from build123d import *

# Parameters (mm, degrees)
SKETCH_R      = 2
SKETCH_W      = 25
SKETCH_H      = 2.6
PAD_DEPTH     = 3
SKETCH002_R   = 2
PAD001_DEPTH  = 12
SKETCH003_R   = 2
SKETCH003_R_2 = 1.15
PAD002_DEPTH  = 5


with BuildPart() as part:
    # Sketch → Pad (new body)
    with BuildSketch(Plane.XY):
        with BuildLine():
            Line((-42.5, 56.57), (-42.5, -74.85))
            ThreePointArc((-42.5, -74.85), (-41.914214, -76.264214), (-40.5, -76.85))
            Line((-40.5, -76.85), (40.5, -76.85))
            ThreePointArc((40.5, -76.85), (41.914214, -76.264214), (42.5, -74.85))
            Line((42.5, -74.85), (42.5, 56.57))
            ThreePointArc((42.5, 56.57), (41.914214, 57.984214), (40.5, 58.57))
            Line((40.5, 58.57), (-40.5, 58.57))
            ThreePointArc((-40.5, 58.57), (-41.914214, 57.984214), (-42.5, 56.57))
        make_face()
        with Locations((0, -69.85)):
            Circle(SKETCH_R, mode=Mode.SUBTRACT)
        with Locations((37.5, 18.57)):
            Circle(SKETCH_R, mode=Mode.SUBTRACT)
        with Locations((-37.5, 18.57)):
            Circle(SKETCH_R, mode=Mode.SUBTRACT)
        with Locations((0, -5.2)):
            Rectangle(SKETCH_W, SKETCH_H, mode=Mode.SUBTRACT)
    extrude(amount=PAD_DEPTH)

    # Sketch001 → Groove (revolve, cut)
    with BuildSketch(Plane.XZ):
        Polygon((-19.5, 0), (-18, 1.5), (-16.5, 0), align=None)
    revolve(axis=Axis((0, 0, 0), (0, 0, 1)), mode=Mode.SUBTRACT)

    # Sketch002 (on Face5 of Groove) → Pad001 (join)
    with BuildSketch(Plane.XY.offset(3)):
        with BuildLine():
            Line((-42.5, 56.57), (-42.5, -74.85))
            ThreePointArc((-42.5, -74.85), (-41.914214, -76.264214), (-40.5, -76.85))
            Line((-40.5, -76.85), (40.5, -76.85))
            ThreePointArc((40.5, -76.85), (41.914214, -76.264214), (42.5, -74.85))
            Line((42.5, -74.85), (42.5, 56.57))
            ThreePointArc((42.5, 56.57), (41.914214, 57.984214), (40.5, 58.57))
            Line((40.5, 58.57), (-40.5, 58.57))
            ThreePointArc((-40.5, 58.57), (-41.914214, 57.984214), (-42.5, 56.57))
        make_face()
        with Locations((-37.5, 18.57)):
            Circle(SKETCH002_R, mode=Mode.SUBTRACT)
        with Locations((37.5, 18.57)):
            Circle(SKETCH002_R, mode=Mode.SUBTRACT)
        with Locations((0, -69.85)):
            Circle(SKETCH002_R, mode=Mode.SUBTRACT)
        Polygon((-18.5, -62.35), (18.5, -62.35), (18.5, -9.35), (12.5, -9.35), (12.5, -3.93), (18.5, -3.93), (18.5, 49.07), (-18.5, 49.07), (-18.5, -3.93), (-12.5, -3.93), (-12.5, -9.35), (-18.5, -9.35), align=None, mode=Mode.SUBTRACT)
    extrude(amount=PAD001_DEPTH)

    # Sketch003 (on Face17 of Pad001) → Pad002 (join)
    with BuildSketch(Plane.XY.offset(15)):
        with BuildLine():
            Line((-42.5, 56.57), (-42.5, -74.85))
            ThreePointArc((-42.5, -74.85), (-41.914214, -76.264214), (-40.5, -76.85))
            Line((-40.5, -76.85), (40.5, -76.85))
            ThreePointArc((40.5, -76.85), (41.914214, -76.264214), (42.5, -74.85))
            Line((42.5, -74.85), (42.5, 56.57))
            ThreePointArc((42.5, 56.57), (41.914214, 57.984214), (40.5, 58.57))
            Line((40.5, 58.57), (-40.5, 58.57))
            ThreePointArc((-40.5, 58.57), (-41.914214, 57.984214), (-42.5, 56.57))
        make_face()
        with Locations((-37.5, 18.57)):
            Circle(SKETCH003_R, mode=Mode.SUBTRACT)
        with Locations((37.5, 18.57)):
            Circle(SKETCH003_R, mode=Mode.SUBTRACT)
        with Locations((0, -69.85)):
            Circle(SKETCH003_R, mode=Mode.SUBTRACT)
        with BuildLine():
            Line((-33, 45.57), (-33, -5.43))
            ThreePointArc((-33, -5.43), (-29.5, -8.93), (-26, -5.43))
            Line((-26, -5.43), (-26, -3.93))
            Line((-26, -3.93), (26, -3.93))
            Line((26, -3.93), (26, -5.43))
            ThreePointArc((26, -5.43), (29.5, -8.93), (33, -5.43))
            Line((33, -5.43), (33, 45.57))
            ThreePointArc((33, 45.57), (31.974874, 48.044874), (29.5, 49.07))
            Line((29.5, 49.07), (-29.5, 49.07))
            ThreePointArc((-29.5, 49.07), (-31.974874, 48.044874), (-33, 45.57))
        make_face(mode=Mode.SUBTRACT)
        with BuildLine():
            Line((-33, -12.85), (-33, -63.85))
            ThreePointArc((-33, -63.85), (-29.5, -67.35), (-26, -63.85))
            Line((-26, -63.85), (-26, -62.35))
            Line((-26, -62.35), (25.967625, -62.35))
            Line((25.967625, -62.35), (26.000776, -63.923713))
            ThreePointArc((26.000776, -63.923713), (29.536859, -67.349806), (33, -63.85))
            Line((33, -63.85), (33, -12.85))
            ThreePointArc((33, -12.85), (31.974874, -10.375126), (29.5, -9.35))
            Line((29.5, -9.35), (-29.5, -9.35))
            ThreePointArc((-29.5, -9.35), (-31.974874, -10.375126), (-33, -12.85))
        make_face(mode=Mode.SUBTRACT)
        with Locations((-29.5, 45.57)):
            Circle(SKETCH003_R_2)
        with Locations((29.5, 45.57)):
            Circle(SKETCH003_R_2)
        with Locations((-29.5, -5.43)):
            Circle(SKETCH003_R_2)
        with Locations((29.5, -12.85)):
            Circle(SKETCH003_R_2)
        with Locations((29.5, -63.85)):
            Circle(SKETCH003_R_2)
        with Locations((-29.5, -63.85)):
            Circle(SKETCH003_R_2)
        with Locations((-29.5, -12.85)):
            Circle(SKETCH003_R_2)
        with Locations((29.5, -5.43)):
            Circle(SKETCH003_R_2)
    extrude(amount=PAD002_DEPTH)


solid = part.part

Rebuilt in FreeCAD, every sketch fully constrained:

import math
import FreeCAD as App
import Part
import Sketcher
Q = App.Units.Quantity

doc = App.newDocument("Part")
body = doc.addObject("PartDesign::Body", "Body")

# Sketch on XY plane
sketch1 = body.newObject("Sketcher::SketchObject", "Sketch")
sketch1.AttachmentSupport = (doc.getObject("XY_Plane"), [""])
sketch1.MapMode = "FlatFace"
sketch1.addGeometry([
    Part.LineSegment(App.Vector(-42.5, 56.6, 0), App.Vector(-42.5, -74.8, 0)),  # 0
    Part.ArcOfCircle(Part.Circle(App.Vector(-40.5, -74.9, 0), App.Vector(0, 0, 1), 2), math.radians(180), math.radians(270)),  # 1
    Part.LineSegment(App.Vector(-40.5, -76.8, 0), App.Vector(40.5, -76.8, 0)),  # 2
    Part.ArcOfCircle(Part.Circle(App.Vector(40.5, -74.9, 0), App.Vector(0, 0, 1), 2), math.radians(-90), math.radians(0)),  # 3
    Part.LineSegment(App.Vector(42.5, -74.8, 0), App.Vector(42.5, 56.6, 0)),  # 4
    Part.ArcOfCircle(Part.Circle(App.Vector(40.5, 56.6, 0), App.Vector(0, 0, 1), 2), math.radians(0), math.radians(90)),  # 5
    Part.LineSegment(App.Vector(40.5, 58.6, 0), App.Vector(-40.5, 58.6, 0)),  # 6
    Part.ArcOfCircle(Part.Circle(App.Vector(-40.5, 56.6, 0), App.Vector(0, 0, 1), 2), math.radians(90), math.radians(180)),  # 7
    Part.Circle(App.Vector(0, -69.8, 0), App.Vector(0, 0, 1), 2),  # 8
    Part.Circle(App.Vector(-37.5, 18.6, 0), App.Vector(0, 0, 1), 2),  # 9
    Part.LineSegment(App.Vector(12.5, -6.5, 0), App.Vector(-12.5, -6.5, 0)),  # 10
    Part.LineSegment(App.Vector(-12.5, -6.5, 0), App.Vector(-12.5, -3.9, 0)),  # 11
    Part.LineSegment(App.Vector(-12.5, -3.9, 0), App.Vector(12.5, -3.9, 0)),  # 12
    Part.LineSegment(App.Vector(12.5, -3.9, 0), App.Vector(12.5, -6.5, 0)),  # 13
    Part.Circle(App.Vector(37.5, 18.6, 0), App.Vector(0, 0, 1), 2),  # 14
], False)
sketch1.addConstraint([
    Sketcher.Constraint("Tangent", 0, 2, 1, 1),
    Sketcher.Constraint("Tangent", 1, 2, 2, 1),
    Sketcher.Constraint("Tangent", 2, 2, 3, 1),
    Sketcher.Constraint("Tangent", 3, 2, 4, 1),
    Sketcher.Constraint("Tangent", 4, 2, 5, 1),
    Sketcher.Constraint("Tangent", 5, 2, 6, 1),
    Sketcher.Constraint("Tangent", 6, 2, 7, 1),
    Sketcher.Constraint("Tangent", 7, 2, 0, 1),
    Sketcher.Constraint("Coincident", 10, 2, 11, 1),
    Sketcher.Constraint("Coincident", 11, 2, 12, 1),
    Sketcher.Constraint("Coincident", 12, 2, 13, 1),
    Sketcher.Constraint("Coincident", 13, 2, 10, 1),
    Sketcher.Constraint("Vertical", 0),
    Sketcher.Constraint("Horizontal", 2),
    Sketcher.Constraint("Vertical", 4),
    Sketcher.Constraint("Horizontal", 6),
    Sketcher.Constraint("Horizontal", 10),
    Sketcher.Constraint("Vertical", 11),
    Sketcher.Constraint("Horizontal", 12),
    Sketcher.Constraint("Vertical", 13),
    Sketcher.Constraint("Equal", 1, 3),
    Sketcher.Constraint("Equal", 3, 5),
    Sketcher.Constraint("Equal", 5, 7),
    Sketcher.Constraint("Equal", 7, 8),
    Sketcher.Constraint("Equal", 8, 9),
    Sketcher.Constraint("Equal", 9, 14),
    Sketcher.Constraint("Symmetric", 9, 3, 14, 3, -2),
    Sketcher.Constraint("PointOnObject", 8, 3, -2),
    Sketcher.Constraint("Diameter", 8, Q("4 mm")),
    Sketcher.Constraint("DistanceX", 2, 1, 2, 2, Q("81 mm")),
    Sketcher.Constraint("DistanceX", 10, 2, 10, 1, Q("25 mm")),
    Sketcher.Constraint("DistanceY", 11, 1, 11, 2, Q("2.6 mm")),
    Sketcher.Constraint("DistanceY", 1, 3, 8, 3, Q("5.000001 mm")),
    Sketcher.Constraint("DistanceX", 7, 3, 9, 3, Q("3.000001 mm")),
    Sketcher.Constraint("DistanceY", 9, 3, 7, 3, Q("38.000001 mm")),
    Sketcher.Constraint("DistanceX", 14, 3, 5, 3, Q("3.000001 mm")),
    Sketcher.Constraint("DistanceX", 9, 3, 10, 2, Q("25 mm")),
    Sketcher.Constraint("DistanceY", 0, 2, 0, 1, Q("131.42 mm")),
    Sketcher.Constraint("DistanceY", 10, 2, -1, 1, Q("6.5 mm")),
    Sketcher.Constraint("DistanceY", 1, 3, -1, 1, Q("74.850001 mm")),
])
pad1 = body.newObject("PartDesign::Pad", "Pad")
pad1.Profile = sketch1
pad1.Length = 3

# Sketch on XZ plane
sketch2 = body.newObject("Sketcher::SketchObject", "Sketch001")
sketch2.AttachmentSupport = (doc.getObject("XZ_Plane"), [""])
sketch2.MapMode = "FlatFace"
sketch2.addGeometry([
    Part.LineSegment(App.Vector(-18, 1.5, 0), App.Vector(-19.5, 0, 0)),
    Part.LineSegment(App.Vector(-19.5, 0, 0), App.Vector(-16.5, 0, 0)),
    Part.LineSegment(App.Vector(-16.5, 0, 0), App.Vector(-18, 1.5, 0)),
], False)
sketch2.addConstraint([
    Sketcher.Constraint("Coincident", 0, 2, 1, 1),
    Sketcher.Constraint("Coincident", 1, 2, 2, 1),
    Sketcher.Constraint("Coincident", 2, 2, 0, 1),
    Sketcher.Constraint("Horizontal", 1),
    Sketcher.Constraint("PointOnObject", 0, 2, -1),
    Sketcher.Constraint("Perpendicular", 0, 2),
    Sketcher.Constraint("Equal", 0, 2),
    Sketcher.Constraint("DistanceX", 1, 1, 1, 2, Q("3 mm")),
    Sketcher.Constraint("DistanceX", 2, 2, -1, 1, Q("18 mm")),
])
groove = body.newObject("PartDesign::Groove", "Groove")
groove.Profile = sketch2
groove.ReferenceAxis = (sketch2, ["V_Axis"])
groove.Angle = 360

# Sketch on XY plane
sketch3 = body.newObject("Sketcher::SketchObject", "Sketch002")
sketch3.AttachmentSupport = (doc.getObject("XY_Plane"), [""])
sketch3.MapMode = "FlatFace"
sketch3.AttachmentOffset = App.Placement(App.Vector(0, 0, 3), App.Rotation())
sketch3.addGeometry([
    Part.LineSegment(App.Vector(-42.5, 56.6, 0), App.Vector(-42.5, -74.8, 0)),  # 0
    Part.ArcOfCircle(Part.Circle(App.Vector(-40.5, -74.9, 0), App.Vector(0, 0, 1), 2), math.radians(180), math.radians(270)),  # 1
    Part.LineSegment(App.Vector(-40.5, -76.8, 0), App.Vector(40.5, -76.8, 0)),  # 2
    Part.ArcOfCircle(Part.Circle(App.Vector(40.5, -74.9, 0), App.Vector(0, 0, 1), 2), math.radians(-90), math.radians(0)),  # 3
    Part.LineSegment(App.Vector(42.5, -74.8, 0), App.Vector(42.5, 56.6, 0)),  # 4
    Part.ArcOfCircle(Part.Circle(App.Vector(40.5, 56.6, 0), App.Vector(0, 0, 1), 2), math.radians(0), math.radians(90)),  # 5
    Part.LineSegment(App.Vector(40.5, 58.6, 0), App.Vector(-40.5, 58.6, 0)),  # 6
    Part.ArcOfCircle(Part.Circle(App.Vector(-40.5, 56.6, 0), App.Vector(0, 0, 1), 2), math.radians(90), math.radians(180)),  # 7
    Part.Circle(App.Vector(0, -69.8, 0), App.Vector(0, 0, 1), 2),  # 8
    Part.Circle(App.Vector(-37.5, 18.6, 0), App.Vector(0, 0, 1), 2),  # 9
    Part.LineSegment(App.Vector(18.5, -62.4, 0), App.Vector(-18.5, -62.4, 0)),  # 10
    Part.LineSegment(App.Vector(-18.5, -62.4, 0), App.Vector(-18.5, -9.3, 0)),  # 11
    Part.LineSegment(App.Vector(-18.5, -9.3, 0), App.Vector(-12.5, -9.3, 0)),  # 12
    Part.LineSegment(App.Vector(-12.5, -9.3, 0), App.Vector(-12.5, -3.9, 0)),  # 13
    Part.LineSegment(App.Vector(-12.5, -3.9, 0), App.Vector(-18.5, -3.9, 0)),  # 14
    Part.LineSegment(App.Vector(-18.5, -3.9, 0), App.Vector(-18.5, 49.1, 0)),  # 15
    Part.LineSegment(App.Vector(-18.5, 49.1, 0), App.Vector(18.5, 49.1, 0)),  # 16
    Part.LineSegment(App.Vector(18.5, 49.1, 0), App.Vector(18.5, -3.9, 0)),  # 17
    Part.LineSegment(App.Vector(18.5, -3.9, 0), App.Vector(12.5, -3.9, 0)),  # 18
    Part.LineSegment(App.Vector(12.5, -3.9, 0), App.Vector(12.5, -9.3, 0)),  # 19
    Part.LineSegment(App.Vector(12.5, -9.3, 0), App.Vector(18.5, -9.3, 0)),  # 20
    Part.LineSegment(App.Vector(18.5, -9.3, 0), App.Vector(18.5, -62.4, 0)),  # 21
    Part.Circle(App.Vector(37.5, 18.6, 0), App.Vector(0, 0, 1), 2),  # 22
], False)
sketch3.addConstraint([
    Sketcher.Constraint("Tangent", 0, 2, 1, 1),
    Sketcher.Constraint("Tangent", 1, 2, 2, 1),
    Sketcher.Constraint("Tangent", 2, 2, 3, 1),
    Sketcher.Constraint("Tangent", 3, 2, 4, 1),
    Sketcher.Constraint("Tangent", 4, 2, 5, 1),
    Sketcher.Constraint("Tangent", 5, 2, 6, 1),
    Sketcher.Constraint("Tangent", 6, 2, 7, 1),
    Sketcher.Constraint("Tangent", 7, 2, 0, 1),
    Sketcher.Constraint("Coincident", 10, 2, 11, 1),
    Sketcher.Constraint("Coincident", 11, 2, 12, 1),
    Sketcher.Constraint("Coincident", 12, 2, 13, 1),
    Sketcher.Constraint("Coincident", 13, 2, 14, 1),
    Sketcher.Constraint("Coincident", 14, 2, 15, 1),
    Sketcher.Constraint("Coincident", 15, 2, 16, 1),
    Sketcher.Constraint("Coincident", 16, 2, 17, 1),
    Sketcher.Constraint("Coincident", 17, 2, 18, 1),
    Sketcher.Constraint("Coincident", 18, 2, 19, 1),
    Sketcher.Constraint("Coincident", 19, 2, 20, 1),
    Sketcher.Constraint("Coincident", 20, 2, 21, 1),
    Sketcher.Constraint("Coincident", 21, 2, 10, 1),
    Sketcher.Constraint("Vertical", 0),
    Sketcher.Constraint("Horizontal", 2),
    Sketcher.Constraint("Vertical", 4),
    Sketcher.Constraint("Horizontal", 6),
    Sketcher.Constraint("Horizontal", 10),
    Sketcher.Constraint("Vertical", 11),
    Sketcher.Constraint("Horizontal", 12),
    Sketcher.Constraint("Vertical", 13),
    Sketcher.Constraint("Horizontal", 14),
    Sketcher.Constraint("Vertical", 15),
    Sketcher.Constraint("Horizontal", 16),
    Sketcher.Constraint("Vertical", 17),
    Sketcher.Constraint("Horizontal", 18),
    Sketcher.Constraint("Vertical", 19),
    Sketcher.Constraint("Horizontal", 20),
    Sketcher.Constraint("Vertical", 21),
    Sketcher.Constraint("Equal", 1, 3),
    Sketcher.Constraint("Equal", 3, 5),
    Sketcher.Constraint("Equal", 5, 7),
    Sketcher.Constraint("Equal", 7, 8),
    Sketcher.Constraint("Equal", 8, 9),
    Sketcher.Constraint("Equal", 9, 22),
    Sketcher.Constraint("Symmetric", 9, 3, 22, 3, -2),
    Sketcher.Constraint("Symmetric", 14, 2, 17, 2, -2),
    Sketcher.Constraint("Symmetric", 12, 2, 19, 2, -2),
    Sketcher.Constraint("PointOnObject", 8, 3, -2),
    Sketcher.Constraint("Vertical", 11, 2, 14, 2),
    Sketcher.Constraint("Vertical", 17, 2, 20, 2),
    Sketcher.Constraint("Equal", 11, 15),
    Sketcher.Constraint("Diameter", 8, Q("4 mm")),
    Sketcher.Constraint("DistanceX", 2, 1, 2, 2, Q("81 mm")),
    Sketcher.Constraint("DistanceX", 10, 2, 10, 1, Q("37 mm")),
    Sketcher.Constraint("DistanceX", 12, 1, 12, 2, Q("6 mm")),
    Sketcher.Constraint("DistanceY", 11, 1, 11, 2, Q("53 mm")),
    Sketcher.Constraint("DistanceY", 1, 3, 8, 3, Q("5.000001 mm")),
    Sketcher.Constraint("DistanceX", 7, 3, 9, 3, Q("3.000001 mm")),
    Sketcher.Constraint("DistanceY", 9, 3, 7, 3, Q("38.000001 mm")),
    Sketcher.Constraint("DistanceX", 22, 3, 5, 3, Q("3.000001 mm")),
    Sketcher.Constraint("DistanceY", 0, 2, 0, 1, Q("131.42 mm")),
    Sketcher.Constraint("DistanceY", 13, 1, 13, 2, Q("5.42 mm")),
    Sketcher.Constraint("DistanceY", 8, 3, 10, 2, Q("7.5 mm")),
    Sketcher.Constraint("DistanceY", 1, 3, -1, 1, Q("74.850001 mm")),
])
pad2 = body.newObject("PartDesign::Pad", "Pad001")
pad2.Profile = sketch3
pad2.Length = 12

# Sketch on XY plane
sketch4 = body.newObject("Sketcher::SketchObject", "Sketch003")
sketch4.AttachmentSupport = (doc.getObject("XY_Plane"), [""])
sketch4.MapMode = "FlatFace"
sketch4.AttachmentOffset = App.Placement(App.Vector(0, 0, 15), App.Rotation())
sketch4.addGeometry([
    Part.LineSegment(App.Vector(-42.5, 56.6, 0), App.Vector(-42.5, -74.8, 0)),  # 0
    Part.ArcOfCircle(Part.Circle(App.Vector(-40.5, -74.9, 0), App.Vector(0, 0, 1), 2), math.radians(180), math.radians(270)),  # 1
    Part.LineSegment(App.Vector(-40.5, -76.8, 0), App.Vector(40.5, -76.8, 0)),  # 2
    Part.ArcOfCircle(Part.Circle(App.Vector(40.5, -74.9, 0), App.Vector(0, 0, 1), 2), math.radians(-90), math.radians(0)),  # 3
    Part.LineSegment(App.Vector(42.5, -74.8, 0), App.Vector(42.5, 56.6, 0)),  # 4
    Part.ArcOfCircle(Part.Circle(App.Vector(40.5, 56.6, 0), App.Vector(0, 0, 1), 2), math.radians(0), math.radians(90)),  # 5
    Part.LineSegment(App.Vector(40.5, 58.6, 0), App.Vector(-40.5, 58.6, 0)),  # 6
    Part.ArcOfCircle(Part.Circle(App.Vector(-40.5, 56.6, 0), App.Vector(0, 0, 1), 2), math.radians(90), math.radians(180)),  # 7
    Part.Circle(App.Vector(0, -69.8, 0), App.Vector(0, 0, 1), 2),  # 8
    Part.LineSegment(App.Vector(-33, -63.9, 0), App.Vector(-33, -12.8, 0)),  # 9
    Part.ArcOfCircle(Part.Circle(App.Vector(-29.5, -12.8, 0), App.Vector(0, 0, 1), 3.5), math.radians(90), math.radians(180)),  # 10
    Part.LineSegment(App.Vector(-29.5, -9.3, 0), App.Vector(29.5, -9.3, 0)),  # 11
    Part.ArcOfCircle(Part.Circle(App.Vector(29.5, -12.8, 0), App.Vector(0, 0, 1), 3.5), math.radians(0), math.radians(90)),  # 12
    Part.LineSegment(App.Vector(33, -12.8, 0), App.Vector(33, -63.9, 0)),  # 13
    Part.ArcOfCircle(Part.Circle(App.Vector(29.5, -63.8, 0), App.Vector(0, 0, 1), 3.5), math.radians(-179), math.radians(0)),  # 14
    Part.LineSegment(App.Vector(26, -63.9, 0), App.Vector(26, -62.4, 0)),  # 15
    Part.LineSegment(App.Vector(26, -62.4, 0), App.Vector(-26, -62.4, 0)),  # 16
    Part.LineSegment(App.Vector(-26, -62.4, 0), App.Vector(-26, -63.9, 0)),  # 17
    Part.ArcOfCircle(Part.Circle(App.Vector(-29.5, -63.9, 0), App.Vector(0, 0, 1), 3.5), math.radians(180), math.radians(360)),  # 18
    Part.Circle(App.Vector(-37.5, 18.6, 0), App.Vector(0, 0, 1), 2),  # 19
    Part.Circle(App.Vector(37.5, 18.6, 0), App.Vector(0, 0, 1), 2),  # 20
    Part.LineSegment(App.Vector(-33, -5.4, 0), App.Vector(-33, 45.6, 0)),  # 21
    Part.ArcOfCircle(Part.Circle(App.Vector(-29.5, 45.6, 0), App.Vector(0, 0, 1), 3.5), math.radians(90), math.radians(180)),  # 22
    Part.LineSegment(App.Vector(-29.5, 49.1, 0), App.Vector(29.5, 49.1, 0)),  # 23
    Part.ArcOfCircle(Part.Circle(App.Vector(29.5, 45.6, 0), App.Vector(0, 0, 1), 3.5), math.radians(0), math.radians(90)),  # 24
    Part.LineSegment(App.Vector(33, 45.6, 0), App.Vector(33, -5.4, 0)),  # 25
    Part.ArcOfCircle(Part.Circle(App.Vector(29.5, -5.4, 0), App.Vector(0, 0, 1), 3.5), math.radians(180), math.radians(360)),  # 26
    Part.LineSegment(App.Vector(26, -5.4, 0), App.Vector(26, -3.9, 0)),  # 27
    Part.LineSegment(App.Vector(26, -3.9, 0), App.Vector(-26, -3.9, 0)),  # 28
    Part.LineSegment(App.Vector(-26, -3.9, 0), App.Vector(-26, -5.4, 0)),  # 29
    Part.ArcOfCircle(Part.Circle(App.Vector(-29.5, -5.4, 0), App.Vector(0, 0, 1), 3.5), math.radians(180), math.radians(360)),  # 30
    Part.Circle(App.Vector(-29.5, 45.6, 0), App.Vector(0, 0, 1), 1.1),  # 31
    Part.Circle(App.Vector(29.5, 45.6, 0), App.Vector(0, 0, 1), 1.1),  # 32
    Part.Circle(App.Vector(-29.5, -5.4, 0), App.Vector(0, 0, 1), 1.1),  # 33
    Part.Circle(App.Vector(29.5, -12.8, 0), App.Vector(0, 0, 1), 1.1),  # 34
    Part.Circle(App.Vector(29.5, -63.9, 0), App.Vector(0, 0, 1), 1.1),  # 35
    Part.Circle(App.Vector(-29.5, -63.9, 0), App.Vector(0, 0, 1), 1.1),  # 36
    Part.Circle(App.Vector(-29.5, -12.8, 0), App.Vector(0, 0, 1), 1.1),  # 37
    Part.Circle(App.Vector(29.5, -5.4, 0), App.Vector(0, 0, 1), 1.1),  # 38
], False)
sketch4.addConstraint([
    Sketcher.Constraint("Tangent", 0, 2, 1, 1),
    Sketcher.Constraint("Tangent", 1, 2, 2, 1),
    Sketcher.Constraint("Tangent", 2, 2, 3, 1),
    Sketcher.Constraint("Tangent", 3, 2, 4, 1),
    Sketcher.Constraint("Tangent", 4, 2, 5, 1),
    Sketcher.Constraint("Tangent", 5, 2, 6, 1),
    Sketcher.Constraint("Tangent", 6, 2, 7, 1),
    Sketcher.Constraint("Tangent", 7, 2, 0, 1),
    Sketcher.Constraint("Tangent", 9, 2, 10, 2),
    Sketcher.Constraint("Tangent", 10, 1, 11, 1),
    Sketcher.Constraint("Tangent", 11, 2, 12, 2),
    Sketcher.Constraint("Tangent", 12, 1, 13, 1),
    Sketcher.Constraint("Tangent", 13, 2, 14, 2),
    Sketcher.Constraint("Tangent", 14, 1, 15, 1),
    Sketcher.Constraint("Coincident", 15, 2, 16, 1),
    Sketcher.Constraint("Coincident", 16, 2, 17, 1),
    Sketcher.Constraint("Tangent", 17, 2, 18, 2),
    Sketcher.Constraint("Tangent", 18, 1, 9, 1),
    Sketcher.Constraint("Tangent", 21, 2, 22, 2),
    Sketcher.Constraint("Tangent", 22, 1, 23, 1),
    Sketcher.Constraint("Tangent", 23, 2, 24, 2),
    Sketcher.Constraint("Tangent", 24, 1, 25, 1),
    Sketcher.Constraint("Tangent", 25, 2, 26, 2),
    Sketcher.Constraint("Tangent", 26, 1, 27, 1),
    Sketcher.Constraint("Coincident", 27, 2, 28, 1),
    Sketcher.Constraint("Coincident", 28, 2, 29, 1),
    Sketcher.Constraint("Tangent", 29, 2, 30, 2),
    Sketcher.Constraint("Tangent", 30, 1, 21, 1),
    Sketcher.Constraint("Vertical", 0),
    Sketcher.Constraint("Horizontal", 2),
    Sketcher.Constraint("Vertical", 4),
    Sketcher.Constraint("Horizontal", 6),
    Sketcher.Constraint("Vertical", 9),
    Sketcher.Constraint("Horizontal", 11),
    Sketcher.Constraint("Vertical", 13),
    Sketcher.Constraint("Horizontal", 16),
    Sketcher.Constraint("Vertical", 17),
    Sketcher.Constraint("Vertical", 21),
    Sketcher.Constraint("Horizontal", 23),
    Sketcher.Constraint("Vertical", 25),
    Sketcher.Constraint("Vertical", 27),
    Sketcher.Constraint("Horizontal", 28),
    Sketcher.Constraint("Vertical", 29),
    Sketcher.Constraint("Coincident", 31, 3, 22, 3),
    Sketcher.Constraint("Coincident", 32, 3, 24, 3),
    Sketcher.Constraint("Coincident", 33, 3, 30, 3),
    Sketcher.Constraint("Coincident", 34, 3, 12, 3),
    Sketcher.Constraint("Coincident", 35, 3, 14, 3),
    Sketcher.Constraint("Coincident", 36, 3, 18, 3),
    Sketcher.Constraint("Coincident", 37, 3, 10, 3),
    Sketcher.Constraint("Coincident", 38, 3, 26, 3),
    Sketcher.Constraint("Equal", 1, 3),
    Sketcher.Constraint("Equal", 3, 5),
    Sketcher.Constraint("Equal", 5, 7),
    Sketcher.Constraint("Equal", 7, 8),
    Sketcher.Constraint("Equal", 10, 12),
    Sketcher.Constraint("Equal", 12, 14),
    Sketcher.Constraint("Equal", 14, 18),
    Sketcher.Constraint("Equal", 8, 19),
    Sketcher.Constraint("Equal", 19, 20),
    Sketcher.Constraint("Equal", 18, 22),
    Sketcher.Constraint("Equal", 22, 24),
    Sketcher.Constraint("Equal", 24, 26),
    Sketcher.Constraint("Equal", 26, 30),
    Sketcher.Constraint("Equal", 31, 32),
    Sketcher.Constraint("Equal", 32, 33),
    Sketcher.Constraint("Equal", 33, 34),
    Sketcher.Constraint("Equal", 34, 35),
    Sketcher.Constraint("Equal", 35, 36),
    Sketcher.Constraint("Equal", 36, 37),
    Sketcher.Constraint("Equal", 37, 38),
    Sketcher.Constraint("Symmetric", 14, 3, 18, 3, -2),
    Sketcher.Constraint("Symmetric", 19, 3, 20, 3, -2),
    Sketcher.Constraint("Symmetric", 26, 3, 30, 3, -2),
    Sketcher.Constraint("PointOnObject", 8, 3, -2),
    Sketcher.Constraint("Vertical", 18, 3, 22, 3),
    Sketcher.Constraint("Equal", 13, 21),
    Sketcher.Constraint("Equal", 17, 27),
    Sketcher.Constraint("Diameter", 8, Q("4 mm")),
    Sketcher.Constraint("Diameter", 31, Q("2.3 mm")),
    Sketcher.Constraint("Radius", 10, Q("3.499999 mm")),
    Sketcher.Constraint("DistanceX", 2, 1, 2, 2, Q("81 mm")),
    Sketcher.Constraint("DistanceX", 11, 1, 11, 2, Q("59 mm")),
    Sketcher.Constraint("DistanceY", 9, 1, 9, 2, Q("51 mm")),
    Sketcher.Constraint("DistanceY", 17, 2, 17, 1, Q("1.5 mm")),
    Sketcher.Constraint("DistanceY", 1, 3, 8, 3, Q("5.000001 mm")),
    Sketcher.Constraint("DistanceX", 1, 3, 10, 3, Q("11.000001 mm")),
    Sketcher.Constraint("DistanceY", 8, 3, 10, 3, Q("57.000001 mm")),
    Sketcher.Constraint("DistanceX", 19, 3, 10, 3, Q("7.999999 mm")),
    Sketcher.Constraint("DistanceY", 19, 3, 7, 3, Q("38.000001 mm")),
    Sketcher.Constraint("DistanceY", 22, 3, 7, 3, Q("11.000001 mm")),
    Sketcher.Constraint("DistanceY", 0, 2, 0, 1, Q("131.42 mm")),
    Sketcher.Constraint("DistanceY", 1, 3, -1, 1, Q("74.850001 mm")),
    Sketcher.Constraint("DistanceX", 16, 2, 16, 1, Q("51.967625 mm")),
])
pad3 = body.newObject("PartDesign::Pad", "Pad002")
pad3.Profile = sketch4
pad3.Length = 5

doc.recompute()
